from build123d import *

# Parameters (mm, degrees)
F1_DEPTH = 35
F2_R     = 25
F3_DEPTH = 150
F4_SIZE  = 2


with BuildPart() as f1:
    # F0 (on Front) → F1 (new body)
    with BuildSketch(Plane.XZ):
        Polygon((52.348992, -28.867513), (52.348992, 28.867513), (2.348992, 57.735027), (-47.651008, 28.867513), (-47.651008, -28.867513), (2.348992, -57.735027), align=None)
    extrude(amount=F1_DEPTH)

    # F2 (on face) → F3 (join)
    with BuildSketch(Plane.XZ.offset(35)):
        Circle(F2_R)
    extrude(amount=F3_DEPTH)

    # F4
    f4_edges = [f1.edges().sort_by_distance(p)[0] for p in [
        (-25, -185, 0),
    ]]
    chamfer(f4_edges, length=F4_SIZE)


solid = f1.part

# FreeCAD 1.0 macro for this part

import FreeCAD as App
import Part
import Sketcher

V = App.Vector
Q = App.Units.Quantity


def edges_at(feature, points):
    """Names of the edges that pass closest to the given points."""
    edges = feature.Shape.Edges
    near = lambda p: min(range(len(edges)), key=lambda i: edges[i].distToShape(Part.Vertex(*p))[0])
    return sorted({f"Edge{near(p) + 1}" for p in points})

doc = App.newDocument("Part")
params = doc.addObject("Spreadsheet::Sheet", "Params")
for row, (alias, value) in enumerate([
    ("pad1_length", "35 mm"),
    ("sketch2_diameter", "50 mm"),
    ("pad2_length", "150 mm"),
    ("chamfer_size", "2 mm"),
], start=1):
    params.set(f"A{row}", alias)
    params.set(f"B{row}", "=" + value)
    params.setAlias(f"B{row}", alias)

body = doc.addObject("PartDesign::Body", "Body")

# Sketch on XZ plane
sketch1 = body.newObject("Sketcher::SketchObject", "Sketch")
sketch1.AttachmentSupport = (doc.getObject("XZ_Plane"), [""])
sketch1.MapMode = "FlatFace"
sketch1.addGeometry([
    Part.LineSegment(V(52.348992, -28.867513, 0), V(52.348992, 28.867513, 0)),  # 0
    Part.LineSegment(V(52.348992, 28.867513, 0), V(2.348992, 57.735027, 0)),  # 1
    Part.LineSegment(V(2.348992, 57.735027, 0), V(-47.651008, 28.867513, 0)),  # 2
    Part.LineSegment(V(-47.651008, 28.867513, 0), V(-47.651008, -28.867513, 0)),  # 3
    Part.LineSegment(V(-47.651008, -28.867513, 0), V(2.348992, -57.735027, 0)),  # 4
    Part.LineSegment(V(2.348992, -57.735027, 0), V(52.348992, -28.867513, 0)),  # 5
], False)
sketch1.addConstraint([
    Sketcher.Constraint("Coincident", 0, 2, 1, 1),
    Sketcher.Constraint("Coincident", 1, 2, 2, 1),
    Sketcher.Constraint("Coincident", 2, 2, 3, 1),
    Sketcher.Constraint("Coincident", 3, 2, 4, 1),
    Sketcher.Constraint("Coincident", 4, 2, 5, 1),
    Sketcher.Constraint("Coincident", 5, 2, 0, 1),
    Sketcher.Constraint("Vertical", 0),
    Sketcher.Constraint("Vertical", 3),
    Sketcher.Constraint("Symmetric", 1, 2, 4, 2, -1),
    Sketcher.Constraint("Parallel", 1, 4),
    Sketcher.Constraint("Parallel", 2, 5),
    Sketcher.Constraint("Horizontal", 0, 2, 2, 2),
    Sketcher.Constraint("Horizontal", 3, 2, 5, 2),
    Sketcher.Constraint("Angle", 1, Q("150 deg")),
    Sketcher.Constraint("DistanceX", 1, 2, 0, 2, Q("50 mm")),
    Sketcher.Constraint("DistanceY", 0, 1, 0, 2, Q("57.735026 mm")),
    Sketcher.Constraint("DistanceX", -1, 1, 1, 2, Q("2.348992 mm")),
])
pad1 = body.newObject("PartDesign::Pad", "Pad")
pad1.Profile = sketch1
pad1.setExpression("Length", "Params.pad1_length")

# Sketch on XZ plane
sketch2 = body.newObject("Sketcher::SketchObject", "Sketch001")
sketch2.AttachmentSupport = (doc.getObject("XZ_Plane"), [""])
sketch2.MapMode = "FlatFace"
sketch2.AttachmentOffset = App.Placement(V(0, 0, 35), App.Rotation())
sketch2.addGeometry(Part.Circle(V(0, 0, 0), V(0, 0, 1), 25), False)
sketch2.addConstraint([
    Sketcher.Constraint("Coincident", 0, 3, -1, 1),
    Sketcher.Constraint("Diameter", 0, Q("50 mm")),
])
sketch2.setExpression("Constraints[1]", "Params.sketch2_diameter")
pad2 = body.newObject("PartDesign::Pad", "Pad001")
pad2.Profile = sketch2
pad2.setExpression("Length", "Params.pad2_length")
doc.recompute()

chamfer = body.newObject("PartDesign::Chamfer", "Chamfer")
chamfer.Base = (pad2, edges_at(pad2, [(-25, -185, 0)]))
chamfer.setExpression("Size", "Params.chamfer_size")

doc.recompute()
